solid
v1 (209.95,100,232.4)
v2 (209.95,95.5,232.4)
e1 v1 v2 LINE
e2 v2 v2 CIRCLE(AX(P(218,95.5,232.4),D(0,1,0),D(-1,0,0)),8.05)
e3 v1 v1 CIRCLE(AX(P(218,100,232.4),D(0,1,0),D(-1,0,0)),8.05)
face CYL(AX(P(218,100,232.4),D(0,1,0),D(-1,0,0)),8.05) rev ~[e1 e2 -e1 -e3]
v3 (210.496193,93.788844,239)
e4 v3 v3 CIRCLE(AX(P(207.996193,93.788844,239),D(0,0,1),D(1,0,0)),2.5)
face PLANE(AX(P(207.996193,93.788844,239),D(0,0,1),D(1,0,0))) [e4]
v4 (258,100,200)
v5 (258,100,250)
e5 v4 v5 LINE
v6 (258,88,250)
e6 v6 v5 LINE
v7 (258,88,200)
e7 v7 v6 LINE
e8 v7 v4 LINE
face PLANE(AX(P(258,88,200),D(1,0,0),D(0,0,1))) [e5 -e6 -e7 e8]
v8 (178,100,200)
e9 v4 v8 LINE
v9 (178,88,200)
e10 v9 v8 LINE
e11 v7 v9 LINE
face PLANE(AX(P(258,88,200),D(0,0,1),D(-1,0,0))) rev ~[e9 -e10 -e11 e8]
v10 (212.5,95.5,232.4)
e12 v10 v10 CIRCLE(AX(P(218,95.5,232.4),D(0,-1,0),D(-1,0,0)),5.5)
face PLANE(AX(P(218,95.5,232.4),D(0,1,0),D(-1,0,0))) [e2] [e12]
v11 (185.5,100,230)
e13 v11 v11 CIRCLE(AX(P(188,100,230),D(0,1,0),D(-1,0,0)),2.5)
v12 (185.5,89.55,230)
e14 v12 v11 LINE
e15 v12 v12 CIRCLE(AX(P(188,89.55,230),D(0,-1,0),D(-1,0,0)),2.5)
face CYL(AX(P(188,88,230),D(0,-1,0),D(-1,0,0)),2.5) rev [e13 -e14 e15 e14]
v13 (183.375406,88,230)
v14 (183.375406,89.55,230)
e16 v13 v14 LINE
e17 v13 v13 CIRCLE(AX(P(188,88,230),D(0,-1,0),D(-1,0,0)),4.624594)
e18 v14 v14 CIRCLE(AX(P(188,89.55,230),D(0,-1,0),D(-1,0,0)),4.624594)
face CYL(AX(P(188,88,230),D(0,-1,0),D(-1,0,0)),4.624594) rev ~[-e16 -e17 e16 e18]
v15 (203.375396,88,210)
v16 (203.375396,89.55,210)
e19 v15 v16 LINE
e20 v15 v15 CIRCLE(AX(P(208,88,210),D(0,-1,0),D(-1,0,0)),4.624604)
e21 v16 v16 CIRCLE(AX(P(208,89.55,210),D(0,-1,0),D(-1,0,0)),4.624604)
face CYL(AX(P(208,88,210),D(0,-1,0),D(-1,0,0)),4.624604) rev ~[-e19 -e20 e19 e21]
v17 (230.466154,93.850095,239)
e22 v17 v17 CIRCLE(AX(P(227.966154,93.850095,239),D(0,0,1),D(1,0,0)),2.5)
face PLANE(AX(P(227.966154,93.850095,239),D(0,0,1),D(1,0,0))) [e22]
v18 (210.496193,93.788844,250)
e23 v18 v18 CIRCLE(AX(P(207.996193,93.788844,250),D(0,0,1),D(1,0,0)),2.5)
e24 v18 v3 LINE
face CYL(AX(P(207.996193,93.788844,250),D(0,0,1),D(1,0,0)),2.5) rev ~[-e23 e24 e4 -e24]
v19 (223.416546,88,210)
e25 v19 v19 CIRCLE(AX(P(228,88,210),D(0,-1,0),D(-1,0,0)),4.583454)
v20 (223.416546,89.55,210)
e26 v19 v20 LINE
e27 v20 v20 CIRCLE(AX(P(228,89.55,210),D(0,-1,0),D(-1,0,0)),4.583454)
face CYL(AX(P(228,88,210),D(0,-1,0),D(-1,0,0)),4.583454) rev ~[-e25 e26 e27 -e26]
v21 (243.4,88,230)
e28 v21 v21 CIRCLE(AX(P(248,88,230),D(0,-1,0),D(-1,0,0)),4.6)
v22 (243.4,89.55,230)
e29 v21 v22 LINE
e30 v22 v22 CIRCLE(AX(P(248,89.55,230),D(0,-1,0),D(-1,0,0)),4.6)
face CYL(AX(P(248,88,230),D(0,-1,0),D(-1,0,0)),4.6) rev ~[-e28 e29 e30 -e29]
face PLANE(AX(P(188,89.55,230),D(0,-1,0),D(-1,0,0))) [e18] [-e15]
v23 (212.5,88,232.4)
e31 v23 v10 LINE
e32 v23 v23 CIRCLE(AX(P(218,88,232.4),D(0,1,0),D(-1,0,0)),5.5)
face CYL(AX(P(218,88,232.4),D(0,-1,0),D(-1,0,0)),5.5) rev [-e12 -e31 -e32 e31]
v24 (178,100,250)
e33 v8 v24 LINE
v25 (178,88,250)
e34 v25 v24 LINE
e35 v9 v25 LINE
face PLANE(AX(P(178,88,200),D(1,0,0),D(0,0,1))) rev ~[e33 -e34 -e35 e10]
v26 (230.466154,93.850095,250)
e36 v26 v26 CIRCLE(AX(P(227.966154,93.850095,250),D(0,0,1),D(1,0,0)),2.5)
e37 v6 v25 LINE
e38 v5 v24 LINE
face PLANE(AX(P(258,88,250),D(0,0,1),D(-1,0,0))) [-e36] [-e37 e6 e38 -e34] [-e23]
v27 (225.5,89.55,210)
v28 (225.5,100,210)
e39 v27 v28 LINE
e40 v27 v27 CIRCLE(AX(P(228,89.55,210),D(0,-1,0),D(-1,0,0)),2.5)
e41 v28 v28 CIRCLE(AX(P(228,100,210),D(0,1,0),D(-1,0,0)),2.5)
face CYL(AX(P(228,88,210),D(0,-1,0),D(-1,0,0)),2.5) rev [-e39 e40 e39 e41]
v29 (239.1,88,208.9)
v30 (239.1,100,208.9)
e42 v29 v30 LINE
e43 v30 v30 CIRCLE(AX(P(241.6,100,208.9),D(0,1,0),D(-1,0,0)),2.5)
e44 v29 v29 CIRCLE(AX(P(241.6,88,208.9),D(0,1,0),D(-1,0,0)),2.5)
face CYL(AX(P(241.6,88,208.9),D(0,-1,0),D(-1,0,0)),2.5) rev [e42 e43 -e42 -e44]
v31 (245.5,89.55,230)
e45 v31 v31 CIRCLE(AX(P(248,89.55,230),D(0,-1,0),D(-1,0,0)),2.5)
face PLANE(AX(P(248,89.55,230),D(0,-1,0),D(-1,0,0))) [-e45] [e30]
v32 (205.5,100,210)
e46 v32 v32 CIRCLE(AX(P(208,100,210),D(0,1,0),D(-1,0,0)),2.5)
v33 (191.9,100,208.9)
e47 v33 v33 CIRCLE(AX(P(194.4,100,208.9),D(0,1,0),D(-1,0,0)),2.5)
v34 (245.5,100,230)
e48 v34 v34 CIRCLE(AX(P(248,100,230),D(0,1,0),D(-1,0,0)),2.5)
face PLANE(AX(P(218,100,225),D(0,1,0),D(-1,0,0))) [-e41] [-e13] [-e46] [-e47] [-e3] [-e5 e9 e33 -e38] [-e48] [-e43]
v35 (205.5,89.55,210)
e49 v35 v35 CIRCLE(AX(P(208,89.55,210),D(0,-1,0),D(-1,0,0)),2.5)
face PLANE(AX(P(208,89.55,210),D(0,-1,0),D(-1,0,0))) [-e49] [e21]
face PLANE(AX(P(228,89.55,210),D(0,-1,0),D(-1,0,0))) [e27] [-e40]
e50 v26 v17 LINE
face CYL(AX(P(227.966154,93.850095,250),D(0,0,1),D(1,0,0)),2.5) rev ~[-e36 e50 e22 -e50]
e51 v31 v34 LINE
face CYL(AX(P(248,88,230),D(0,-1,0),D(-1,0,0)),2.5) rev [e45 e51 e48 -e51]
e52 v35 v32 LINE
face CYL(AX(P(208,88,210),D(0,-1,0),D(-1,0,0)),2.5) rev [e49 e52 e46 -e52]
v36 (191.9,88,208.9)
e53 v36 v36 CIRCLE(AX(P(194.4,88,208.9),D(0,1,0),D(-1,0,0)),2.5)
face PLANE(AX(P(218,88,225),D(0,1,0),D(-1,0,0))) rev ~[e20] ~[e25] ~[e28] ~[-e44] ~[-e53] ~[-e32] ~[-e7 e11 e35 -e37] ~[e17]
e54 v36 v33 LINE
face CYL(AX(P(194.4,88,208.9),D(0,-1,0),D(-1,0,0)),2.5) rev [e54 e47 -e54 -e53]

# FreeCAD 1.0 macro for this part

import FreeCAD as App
import Part
import Sketcher
from FreeCAD import Vector

doc = App.newDocument("Part")
params = doc.addObject("Spreadsheet::Sheet", "Params")
for row, (alias, value) in enumerate([
    ("sketch1_diameter", "5 mm"),
    ("sketch1_diameter2", "11 mm"),
    ("sketch1_width", "80 mm"),
    ("sketch1_height", "50 mm"),
    ("pad1_length", "12 mm"),
    ("sketch2_diameter", "5 mm"),
    ("pocket1_length", "11 mm"),
    ("sketch3_diameter", "16.1 mm"),
    ("pocket2_length", "4.5 mm"),
    ("sketch4_diameter", "9.2 mm"),
    ("pocket3_length", "1.55 mm"),
], start=1):
    params.set(f"A{row}", alias)
    params.set(f"B{row}", "=" + value)
    params.setAlias(f"B{row}", alias)

body = doc.addObject("PartDesign::Body", "Body")

sketch1 = doc.addObject("Sketcher::SketchObject", "Sketch")
body.addObject(sketch1)
sketch1.AttachmentSupport = (doc.XZ_Plane, [""])
sketch1.MapMode = "FlatFace"
sketch1.AttachmentOffset = App.Placement(Vector(0, 0, -88), App.Rotation())
sketch1.addGeometry(Part.LineSegment(Vector(258, 250, 0), Vector(258, 200, 0)), False)
sketch1.addGeometry(Part.LineSegment(Vector(258, 200, 0), Vector(178, 200, 0)), False)
sketch1.addGeometry(Part.LineSegment(Vector(178, 200, 0), Vector(178, 250, 0)), False)
sketch1.addGeometry(Part.LineSegment(Vector(178, 250, 0), Vector(258, 250, 0)), False)
sketch1.addGeometry(Part.Circle(Vector(241.6, 208.9, 0), Vector(0, 0, 1), 2.5), False)
sketch1.addGeometry(Part.Circle(Vector(228, 210, 0), Vector(0, 0, 1), 2.5), False)
sketch1.addGeometry(Part.Circle(Vector(208, 210, 0), Vector(0, 0, 1), 2.5), False)
sketch1.addGeometry(Part.Circle(Vector(194.4, 208.9, 0), Vector(0, 0, 1), 2.5), False)
sketch1.addGeometry(Part.Circle(Vector(248, 230, 0), Vector(0, 0, 1), 2.5), False)
sketch1.addGeometry(Part.Circle(Vector(188, 230, 0), Vector(0, 0, 1), 2.5), False)
sketch1.addGeometry(Part.Circle(Vector(218, 232.4, 0), Vector(0, 0, 1), 5.5), False)
sketch1.addConstraint(Sketcher.Constraint("Coincident", 0, 2, 1, 1))
sketch1.addConstraint(Sketcher.Constraint("Coincident", 1, 2, 2, 1))
sketch1.addConstraint(Sketcher.Constraint("Coincident", 2, 2, 3, 1))
sketch1.addConstraint(Sketcher.Constraint("Coincident", 3, 2, 0, 1))
sketch1.addConstraint(Sketcher.Constraint("Vertical", 0))
sketch1.addConstraint(Sketcher.Constraint("Horizontal", 1))
sketch1.addConstraint(Sketcher.Constraint("Vertical", 2))
sketch1.addConstraint(Sketcher.Constraint("Horizontal", 3))
sketch1.addConstraint(Sketcher.Constraint("Equal", 4, 5))
sketch1.addConstraint(Sketcher.Constraint("Equal", 5, 6))
sketch1.addConstraint(Sketcher.Constraint("Equal", 6, 7))
sketch1.addConstraint(Sketcher.Constraint("Equal", 7, 8))
sketch1.addConstraint(Sketcher.Constraint("Equal", 8, 9))
sketch1.addConstraint(Sketcher.Constraint("Horizontal", 5, 3, 6, 3))
sketch1.addConstraint(Sketcher.Constraint("Horizontal", 4, 3, 7, 3))
sketch1.addConstraint(Sketcher.Constraint("Horizontal", 8, 3, 9, 3))
sketch1.addConstraint(Sketcher.Constraint("Diameter", 4, 5.0))
sketch1.addConstraint(Sketcher.Constraint("Diameter", 10, 11.0))
sketch1.addConstraint(Sketcher.Constraint("DistanceX", 1, 2, 1, 1, 80.0))
sketch1.addConstraint(Sketcher.Constraint("DistanceY", 0, 2, 0, 1, 50.0))
sketch1.addConstraint(Sketcher.Constraint("DistanceX", -1, 1, 5, 3, 228.0))
sketch1.addConstraint(Sketcher.Constraint("DistanceY", -1, 1, 5, 3, 210.0))
sketch1.addConstraint(Sketcher.Constraint("DistanceX", -1, 1, 6, 3, 208.0))
sketch1.addConstraint(Sketcher.Constraint("DistanceX", -1, 1, 8, 3, 248.0))
sketch1.addConstraint(Sketcher.Constraint("DistanceY", -1, 1, 8, 3, 230.0))
sketch1.addConstraint(Sketcher.Constraint("DistanceX", -1, 1, 9, 3, 188.0))
sketch1.addConstraint(Sketcher.Constraint("DistanceX", -1, 1, 10, 3, 218.0))
sketch1.addConstraint(Sketcher.Constraint("DistanceX", -1, 1, 0, 2, 258.0))
sketch1.addConstraint(Sketcher.Constraint("DistanceY", -1, 1, 0, 2, 200.0))
sketch1.addConstraint(Sketcher.Constraint("DistanceX", -1, 1, 4, 3, 241.6))
sketch1.addConstraint(Sketcher.Constraint("DistanceY", -1, 1, 4, 3, 208.9))
sketch1.addConstraint(Sketcher.Constraint("DistanceX", -1, 1, 7, 3, 194.4))
sketch1.addConstraint(Sketcher.Constraint("DistanceY", -1, 1, 10, 3, 232.4))
sketch1.setExpression("Constraints[16]", "Params.sketch1_diameter")
sketch1.setExpression("Constraints[17]", "Params.sketch1_diameter2")
sketch1.setExpression("Constraints[18]", "Params.sketch1_width")
sketch1.setExpression("Constraints[19]", "Params.sketch1_height")
pad1 = doc.addObject("PartDesign::Pad", "Pad")
body.addObject(pad1)
pad1.Profile = sketch1
pad1.setExpression("Length", "Params.pad1_length")
pad1.Reversed = True

sketch2 = doc.addObject("Sketcher::SketchObject", "Sketch001")
body.addObject(sketch2)
sketch2.AttachmentSupport = (doc.XY_Plane, [""])
sketch2.MapMode = "FlatFace"
sketch2.AttachmentOffset = App.Placement(Vector(0, 0, 250), App.Rotation())
sketch2.addGeometry(Part.Circle(Vector(228, 93.9, 0), Vector(0, 0, 1), 2.5), False)
sketch2.addGeometry(Part.Circle(Vector(208, 93.8, 0), Vector(0, 0, 1), 2.5), False)
sketch2.addConstraint(Sketcher.Constraint("Equal", 0, 1))
sketch2.addConstraint(Sketcher.Constraint("Diameter", 0, 5.0))
sketch2.addConstraint(Sketcher.Constraint("DistanceX", 1, 3, 0, 3, 19.969961))
sketch2.addConstraint(Sketcher.Constraint("DistanceY", 1, 3, 0, 3, 0.061251))
sketch2.addConstraint(Sketcher.Constraint("DistanceX", -1, 1, 0, 3, 227.966154))
sketch2.addConstraint(Sketcher.Constraint("DistanceY", -1, 1, 0, 3, 93.850095))
sketch2.setExpression("Constraints[1]", "Params.sketch2_diameter")
pocket1 = doc.addObject("PartDesign::Pocket", "Pocket")
body.addObject(pocket1)
pocket1.Profile = sketch2
pocket1.setExpression("Length", "Params.pocket1_length")

sketch3 = doc.addObject("Sketcher::SketchObject", "Sketch002")
body.addObject(sketch3)
sketch3.AttachmentSupport = (doc.XZ_Plane, [""])
sketch3.MapMode = "FlatFace"
sketch3.AttachmentOffset = App.Placement(Vector(0, 0, -100), App.Rotation())
sketch3.addGeometry(Part.Circle(Vector(218, 232, 0), Vector(0, 0, 1), 8), False)
sketch3.addConstraint(Sketcher.Constraint("Diameter", 0, 16.1))
sketch3.addConstraint(Sketcher.Constraint("DistanceX", -1, 1, 0, 3, 218.0))
sketch3.addConstraint(Sketcher.Constraint("DistanceY", -1, 1, 0, 3, 232.4))
sketch3.setExpression("Constraints[0]", "Params.sketch3_diameter")
pocket2 = doc.addObject("PartDesign::Pocket", "Pocket001")
body.addObject(pocket2)
pocket2.Profile = sketch3
pocket2.setExpression("Length", "Params.pocket2_length")
pocket2.Reversed = True

sketch4 = doc.addObject("Sketcher::SketchObject", "Sketch003")
body.addObject(sketch4)
sketch4.AttachmentSupport = (doc.XZ_Plane, [""])
sketch4.MapMode = "FlatFace"
sketch4.AttachmentOffset = App.Placement(Vector(0, 0, -88), App.Rotation())
sketch4.addGeometry(Part.Circle(Vector(248, 230, 0), Vector(0, 0, 1), 4.6), False)
sketch4.addGeometry(Part.Circle(Vector(188, 230, 0), Vector(0, 0, 1), 4.6), False)
sketch4.addGeometry(Part.Circle(Vector(228, 210, 0), Vector(0, 0, 1), 4.6), False)
sketch4.addGeometry(Part.Circle(Vector(208, 210, 0), Vector(0, 0, 1), 4.6), False)
sketch4.addConstraint(Sketcher.Constraint("Horizontal", 0, 3, 1, 3))
sketch4.addConstraint(Sketcher.Constraint("Horizontal", 2, 3, 3, 3))
sketch4.addConstraint(Sketcher.Constraint("Diameter", 0, 9.2))
sketch4.addConstraint(Sketcher.Constraint("DistanceX", -1, 1, 0, 3, 248.0))
sketch4.addConstraint(Sketcher.Constraint("DistanceY", -1, 1, 0, 3, 230.0))
sketch4.addConstraint(Sketcher.Constraint("DistanceX", -1, 1, 1, 3, 188.0))
sketch4.addConstraint(Sketcher.Constraint("DistanceX", -1, 1, 2, 3, 228.0))
sketch4.addConstraint(Sketcher.Constraint("DistanceY", -1, 1, 2, 3, 210.0))
sketch4.addConstraint(Sketcher.Constraint("DistanceX", -1, 1, 3, 3, 208.0))
sketch4.addConstraint(Sketcher.Constraint("Diameter", 1, 9.249188))
sketch4.addConstraint(Sketcher.Constraint("Diameter", 2, 9.166908))
sketch4.addConstraint(Sketcher.Constraint("Diameter", 3, 9.249208))
sketch4.setExpression("Constraints[2]", "Params.sketch4_diameter")
pocket3 = doc.addObject("PartDesign::Pocket", "Pocket002")
body.addObject(pocket3)
pocket3.Profile = sketch4
pocket3.setExpression("Length", "Params.pocket3_length")

doc.recompute()
